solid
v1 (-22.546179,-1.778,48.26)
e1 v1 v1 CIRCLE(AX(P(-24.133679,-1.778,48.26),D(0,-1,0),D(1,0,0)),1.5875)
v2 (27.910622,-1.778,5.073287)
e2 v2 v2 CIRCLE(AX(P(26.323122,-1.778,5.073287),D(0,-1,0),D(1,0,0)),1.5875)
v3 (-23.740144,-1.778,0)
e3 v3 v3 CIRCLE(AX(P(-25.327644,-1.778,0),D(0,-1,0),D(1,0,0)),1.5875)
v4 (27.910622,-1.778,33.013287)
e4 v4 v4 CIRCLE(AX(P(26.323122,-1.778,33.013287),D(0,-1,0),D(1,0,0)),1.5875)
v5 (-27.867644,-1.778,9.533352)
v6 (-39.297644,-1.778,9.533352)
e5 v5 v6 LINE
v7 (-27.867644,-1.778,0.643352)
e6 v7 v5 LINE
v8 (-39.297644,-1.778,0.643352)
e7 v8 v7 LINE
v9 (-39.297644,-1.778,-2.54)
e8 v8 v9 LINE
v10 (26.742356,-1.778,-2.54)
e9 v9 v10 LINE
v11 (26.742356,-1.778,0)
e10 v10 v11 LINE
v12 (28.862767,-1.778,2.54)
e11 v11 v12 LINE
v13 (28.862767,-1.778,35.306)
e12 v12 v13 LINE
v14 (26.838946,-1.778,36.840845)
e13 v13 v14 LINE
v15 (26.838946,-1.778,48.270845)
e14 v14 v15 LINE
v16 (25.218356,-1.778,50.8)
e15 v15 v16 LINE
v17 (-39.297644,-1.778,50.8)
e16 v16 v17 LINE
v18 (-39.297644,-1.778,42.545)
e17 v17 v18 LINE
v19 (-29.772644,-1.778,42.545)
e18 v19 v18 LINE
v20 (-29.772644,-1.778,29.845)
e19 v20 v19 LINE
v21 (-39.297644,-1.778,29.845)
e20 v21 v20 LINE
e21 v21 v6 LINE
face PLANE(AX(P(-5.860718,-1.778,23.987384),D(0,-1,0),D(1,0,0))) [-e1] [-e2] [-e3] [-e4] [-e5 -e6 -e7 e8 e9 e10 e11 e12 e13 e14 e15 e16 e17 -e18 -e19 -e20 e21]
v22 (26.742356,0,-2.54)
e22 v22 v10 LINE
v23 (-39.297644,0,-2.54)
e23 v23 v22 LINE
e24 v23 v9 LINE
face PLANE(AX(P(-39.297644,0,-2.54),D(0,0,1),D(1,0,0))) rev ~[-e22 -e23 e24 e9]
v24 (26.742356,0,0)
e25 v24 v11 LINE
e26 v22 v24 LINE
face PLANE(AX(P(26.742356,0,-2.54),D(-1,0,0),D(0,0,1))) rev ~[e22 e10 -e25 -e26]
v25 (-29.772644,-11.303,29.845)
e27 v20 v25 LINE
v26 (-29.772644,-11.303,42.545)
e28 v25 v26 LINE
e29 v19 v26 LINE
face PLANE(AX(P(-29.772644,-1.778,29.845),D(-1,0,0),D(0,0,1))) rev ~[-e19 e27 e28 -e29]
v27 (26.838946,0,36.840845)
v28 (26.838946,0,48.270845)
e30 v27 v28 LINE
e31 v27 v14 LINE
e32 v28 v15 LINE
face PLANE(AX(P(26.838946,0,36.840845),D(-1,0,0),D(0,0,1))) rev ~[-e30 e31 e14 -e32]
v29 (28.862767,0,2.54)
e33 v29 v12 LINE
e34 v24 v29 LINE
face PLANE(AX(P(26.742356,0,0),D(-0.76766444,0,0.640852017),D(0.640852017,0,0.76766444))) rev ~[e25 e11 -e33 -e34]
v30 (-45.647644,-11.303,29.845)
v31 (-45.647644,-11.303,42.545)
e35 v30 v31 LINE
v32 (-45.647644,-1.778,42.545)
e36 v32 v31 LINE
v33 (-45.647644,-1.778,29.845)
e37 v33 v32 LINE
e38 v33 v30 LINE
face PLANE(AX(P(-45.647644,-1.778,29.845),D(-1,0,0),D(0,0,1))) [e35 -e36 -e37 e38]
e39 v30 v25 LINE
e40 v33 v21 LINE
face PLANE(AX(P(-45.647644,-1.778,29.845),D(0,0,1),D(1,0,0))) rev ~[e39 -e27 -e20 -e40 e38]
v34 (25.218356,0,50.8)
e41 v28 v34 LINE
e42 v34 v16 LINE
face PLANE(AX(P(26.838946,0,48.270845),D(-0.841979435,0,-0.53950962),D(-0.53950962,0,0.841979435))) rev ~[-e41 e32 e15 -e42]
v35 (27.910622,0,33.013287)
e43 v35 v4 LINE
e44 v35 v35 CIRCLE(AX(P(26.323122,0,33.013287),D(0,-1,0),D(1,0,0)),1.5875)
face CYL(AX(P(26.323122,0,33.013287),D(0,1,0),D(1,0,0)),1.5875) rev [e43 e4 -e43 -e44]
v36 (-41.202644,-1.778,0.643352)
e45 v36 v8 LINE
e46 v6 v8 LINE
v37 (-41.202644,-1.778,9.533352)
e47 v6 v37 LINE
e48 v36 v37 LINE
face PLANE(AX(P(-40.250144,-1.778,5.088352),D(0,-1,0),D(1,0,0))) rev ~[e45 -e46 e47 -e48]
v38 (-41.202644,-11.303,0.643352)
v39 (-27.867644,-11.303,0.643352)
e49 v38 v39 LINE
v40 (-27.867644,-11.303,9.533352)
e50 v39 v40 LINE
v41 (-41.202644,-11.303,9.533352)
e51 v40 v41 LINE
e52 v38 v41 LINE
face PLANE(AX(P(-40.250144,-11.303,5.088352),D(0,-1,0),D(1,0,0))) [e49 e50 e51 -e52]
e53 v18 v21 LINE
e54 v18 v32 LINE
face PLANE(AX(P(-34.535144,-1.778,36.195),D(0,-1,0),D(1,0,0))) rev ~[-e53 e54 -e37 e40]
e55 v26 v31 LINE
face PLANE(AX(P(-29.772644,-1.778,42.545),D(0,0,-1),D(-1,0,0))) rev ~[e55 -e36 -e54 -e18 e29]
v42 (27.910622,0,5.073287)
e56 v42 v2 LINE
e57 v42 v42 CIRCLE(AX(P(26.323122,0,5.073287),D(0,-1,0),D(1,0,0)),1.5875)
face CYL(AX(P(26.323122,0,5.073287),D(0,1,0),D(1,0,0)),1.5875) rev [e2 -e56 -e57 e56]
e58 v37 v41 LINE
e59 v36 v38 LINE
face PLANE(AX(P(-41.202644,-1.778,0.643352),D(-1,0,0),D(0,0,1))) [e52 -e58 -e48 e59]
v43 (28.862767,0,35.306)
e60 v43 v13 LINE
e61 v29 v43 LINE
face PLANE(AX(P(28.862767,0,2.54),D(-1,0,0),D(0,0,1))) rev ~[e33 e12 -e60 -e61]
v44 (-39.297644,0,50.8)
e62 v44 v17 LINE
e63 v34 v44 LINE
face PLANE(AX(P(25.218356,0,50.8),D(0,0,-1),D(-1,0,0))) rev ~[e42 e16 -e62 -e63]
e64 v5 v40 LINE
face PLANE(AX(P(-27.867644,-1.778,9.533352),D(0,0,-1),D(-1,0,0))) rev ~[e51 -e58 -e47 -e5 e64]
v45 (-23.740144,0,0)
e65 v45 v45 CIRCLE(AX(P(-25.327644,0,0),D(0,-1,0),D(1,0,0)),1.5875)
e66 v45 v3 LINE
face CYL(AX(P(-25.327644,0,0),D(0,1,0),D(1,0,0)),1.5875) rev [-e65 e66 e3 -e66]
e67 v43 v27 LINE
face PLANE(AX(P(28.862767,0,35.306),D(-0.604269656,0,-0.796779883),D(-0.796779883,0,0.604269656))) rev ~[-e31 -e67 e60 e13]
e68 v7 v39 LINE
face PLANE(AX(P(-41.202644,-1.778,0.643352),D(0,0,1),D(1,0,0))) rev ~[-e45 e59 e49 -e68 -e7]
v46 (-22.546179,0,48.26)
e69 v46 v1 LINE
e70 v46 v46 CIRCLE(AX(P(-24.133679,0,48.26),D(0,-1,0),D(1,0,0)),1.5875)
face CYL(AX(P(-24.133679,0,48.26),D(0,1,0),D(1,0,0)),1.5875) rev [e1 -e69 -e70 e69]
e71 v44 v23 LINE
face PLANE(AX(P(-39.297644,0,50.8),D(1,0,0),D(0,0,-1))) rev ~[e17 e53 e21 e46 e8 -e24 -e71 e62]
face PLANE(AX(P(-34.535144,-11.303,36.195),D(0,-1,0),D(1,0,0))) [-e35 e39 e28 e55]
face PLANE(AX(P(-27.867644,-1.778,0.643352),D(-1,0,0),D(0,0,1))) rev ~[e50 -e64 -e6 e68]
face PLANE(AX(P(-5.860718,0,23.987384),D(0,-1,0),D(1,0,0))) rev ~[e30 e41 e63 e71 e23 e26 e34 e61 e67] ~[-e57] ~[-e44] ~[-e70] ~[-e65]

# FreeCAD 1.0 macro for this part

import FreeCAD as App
import Part
import Sketcher
from FreeCAD import Vector
Q = App.Units.Quantity

doc = App.newDocument("Part")
body = doc.addObject("PartDesign::Body", "Body")

# Sketch on XZ plane
sketch1 = body.newObject("Sketcher::SketchObject", "Sketch")
sketch1.AttachmentSupport = (doc.getObject("XZ_Plane"), [""])
sketch1.MapMode = "FlatFace"
sketch1.addGeometry([
    Part.LineSegment(Vector(25.2, 50.8, 0), Vector(-39.3, 50.8, 0)),  # 0
    Part.LineSegment(Vector(-39.3, 50.8, 0), Vector(-39.3, -2.5, 0)),  # 1
    Part.LineSegment(Vector(-39.3, -2.5, 0), Vector(26.7, -2.5, 0)),  # 2
    Part.LineSegment(Vector(26.7, -2.5, 0), Vector(26.7, 0, 0)),  # 3
    Part.LineSegment(Vector(26.7, 0, 0), Vector(28.9, 2.5, 0)),  # 4
    Part.LineSegment(Vector(28.9, 2.5, 0), Vector(28.9, 35.3, 0)),  # 5
    Part.LineSegment(Vector(28.9, 35.3, 0), Vector(26.8, 36.8, 0)),  # 6
    Part.LineSegment(Vector(26.8, 36.8, 0), Vector(26.8, 48.3, 0)),  # 7
    Part.LineSegment(Vector(26.8, 48.3, 0), Vector(25.2, 50.8, 0)),  # 8
    Part.Circle(Vector(-25.3, 0, 0), Vector(0, 0, 1), 1.6),  # 9
    Part.Circle(Vector(26.3, 5.1, 0), Vector(0, 0, 1), 1.6),  # 10
    Part.Circle(Vector(-24.1, 48.3, 0), Vector(0, 0, 1), 1.6),  # 11
    Part.Circle(Vector(26.3, 33, 0), Vector(0, 0, 1), 1.6),  # 12
], False)
sketch1.addConstraint([
    Sketcher.Constraint("Coincident", 0, 2, 1, 1),
    Sketcher.Constraint("Coincident", 1, 2, 2, 1),
    Sketcher.Constraint("Coincident", 2, 2, 3, 1),
    Sketcher.Constraint("Coincident", 3, 2, 4, 1),
    Sketcher.Constraint("Coincident", 4, 2, 5, 1),
    Sketcher.Constraint("Coincident", 5, 2, 6, 1),
    Sketcher.Constraint("Coincident", 6, 2, 7, 1),
    Sketcher.Constraint("Coincident", 7, 2, 8, 1),
    Sketcher.Constraint("Coincident", 8, 2, 0, 1),
    Sketcher.Constraint("Horizontal", 0),
    Sketcher.Constraint("Vertical", 1),
    Sketcher.Constraint("Horizontal", 2),
    Sketcher.Constraint("Vertical", 3),
    Sketcher.Constraint("Vertical", 5),
    Sketcher.Constraint("Vertical", 7),
    Sketcher.Constraint("Equal", 9, 10),
    Sketcher.Constraint("Equal", 10, 11),
    Sketcher.Constraint("Equal", 11, 12),
    Sketcher.Constraint("PointOnObject", 9, 3, -1),
    Sketcher.Constraint("PointOnObject", 3, 2, -1),
    Sketcher.Constraint("Vertical", 10, 3, 12, 3),
    Sketcher.Constraint("Diameter", 9, Q("0.125 in")),
    Sketcher.Constraint("DistanceX", 2, 1, 2, 2, Q("2.6 in")),
    Sketcher.Constraint("DistanceY", 1, 2, 1, 1, Q("2.1 in")),
    Sketcher.Constraint("DistanceY", 3, 1, 3, 2, Q("0.1 in")),
    Sketcher.Constraint("DistanceY", 1, 2, 11, 3, Q("2 in")),
    Sketcher.Constraint("Distance", 6, Q("0.1 in")),
    Sketcher.Constraint("DistanceX", 0, 2, 0, 1, Q("2.54 in")),
    Sketcher.Constraint("DistanceY", 5, 1, 5, 2, Q("1.29 in")),
    Sketcher.Constraint("DistanceY", 7, 1, 7, 2, Q("0.45 in")),
    Sketcher.Constraint("DistanceY", -1, 1, 4, 2, Q("0.1 in")),
    Sketcher.Constraint("DistanceY", 10, 3, 12, 3, Q("1.1 in")),
    Sketcher.Constraint("DistanceX", 0, 2, 9, 3, Q("0.55 in")),
    Sketcher.Constraint("DistanceX", 11, 3, 10, 3, 50.456801),
    Sketcher.Constraint("Distance", 8, 3.00382),
    Sketcher.Constraint("DistanceX", 11, 3, -1, 1, 24.133679),
    Sketcher.Constraint("DistanceX", 3, 2, 4, 2, 2.120411),
    Sketcher.Constraint("DistanceY", 12, 3, 6, 2, 3.827558),
    Sketcher.Constraint("DistanceX", 9, 3, -1, 1, 25.327644),
])
pad1 = body.newObject("PartDesign::Pad", "Pad")
pad1.Profile = sketch1
pad1.Length = Q("0.07 in")

# Sketch on XZ plane
sketch2 = body.newObject("Sketcher::SketchObject", "Sketch001")
sketch2.AttachmentSupport = (doc.getObject("XZ_Plane"), [""])
sketch2.MapMode = "FlatFace"
sketch2.AttachmentOffset = App.Placement(Vector(0, 0, 0.07 * 25.4), App.Rotation())
sketch2.addGeometry([
    Part.LineSegment(Vector(-30, 30, 0), Vector(-30, 43, 0)),
    Part.LineSegment(Vector(-30, 43, 0), Vector(-46, 43, 0)),
    Part.LineSegment(Vector(-46, 43, 0), Vector(-46, 30, 0)),
    Part.LineSegment(Vector(-46, 30, 0), Vector(-30, 30, 0)),
], False)
sketch2.addConstraint([
    Sketcher.Constraint("Coincident", 0, 2, 1, 1),
    Sketcher.Constraint("Coincident", 1, 2, 2, 1),
    Sketcher.Constraint("Coincident", 2, 2, 3, 1),
    Sketcher.Constraint("Coincident", 3, 2, 0, 1),
    Sketcher.Constraint("Vertical", 0),
    Sketcher.Constraint("Horizontal", 1),
    Sketcher.Constraint("Vertical", 2),
    Sketcher.Constraint("Horizontal", 3),
    Sketcher.Constraint("DistanceY", 0, 1, 0, 2, Q("0.5 in")),
    Sketcher.Constraint("DistanceX", 1, 2, 1, 1, Q("0.625 in")),
    Sketcher.Constraint("DistanceY", -1, 1, 0, 2, Q("1.675 in")),
    Sketcher.Constraint("DistanceX", 0, 2, -1, 1, 29.772644),
])
pad2 = body.newObject("PartDesign::Pad", "Pad001")
pad2.Profile = sketch2
pad2.Length = Q("0.375 in")

# Sketch on XZ plane
sketch3 = body.newObject("Sketcher::SketchObject", "Sketch002")
sketch3.AttachmentSupport = (doc.getObject("XZ_Plane"), [""])
sketch3.MapMode = "FlatFace"
sketch3.AttachmentOffset = App.Placement(Vector(0, 0, 0.07 * 25.4), App.Rotation())
sketch3.addGeometry([
    Part.LineSegment(Vector(-41, 10, 0), Vector(-41, 1, 0)),
    Part.LineSegment(Vector(-41, 1, 0), Vector(-28, 1, 0)),
    Part.LineSegment(Vector(-28, 1, 0), Vector(-28, 10, 0)),
    Part.LineSegment(Vector(-28, 10, 0), Vector(-41, 10, 0)),
], False)
sketch3.addConstraint([
    Sketcher.Constraint("Coincident", 0, 2, 1, 1),
    Sketcher.Constraint("Coincident", 1, 2, 2, 1),
    Sketcher.Constraint("Coincident", 2, 2, 3, 1),
    Sketcher.Constraint("Coincident", 3, 2, 0, 1),
    Sketcher.Constraint("Vertical", 0),
    Sketcher.Constraint("Horizontal", 1),
    Sketcher.Constraint("Vertical", 2),
    Sketcher.Constraint("Horizontal", 3),
    Sketcher.Constraint("DistanceY", 0, 2, 0, 1, Q("0.35 in")),
    Sketcher.Constraint("DistanceX", 1, 1, 1, 2, Q("0.525 in")),
    Sketcher.Constraint("DistanceX", 0, 2, -1, 1, 41.202644),
    Sketcher.Constraint("DistanceY", -1, 1, 0, 2, 0.643352),
])
pad3 = body.newObject("PartDesign::Pad", "Pad002")
pad3.Profile = sketch3
pad3.Length = Q("0.375 in")

doc.recompute()
